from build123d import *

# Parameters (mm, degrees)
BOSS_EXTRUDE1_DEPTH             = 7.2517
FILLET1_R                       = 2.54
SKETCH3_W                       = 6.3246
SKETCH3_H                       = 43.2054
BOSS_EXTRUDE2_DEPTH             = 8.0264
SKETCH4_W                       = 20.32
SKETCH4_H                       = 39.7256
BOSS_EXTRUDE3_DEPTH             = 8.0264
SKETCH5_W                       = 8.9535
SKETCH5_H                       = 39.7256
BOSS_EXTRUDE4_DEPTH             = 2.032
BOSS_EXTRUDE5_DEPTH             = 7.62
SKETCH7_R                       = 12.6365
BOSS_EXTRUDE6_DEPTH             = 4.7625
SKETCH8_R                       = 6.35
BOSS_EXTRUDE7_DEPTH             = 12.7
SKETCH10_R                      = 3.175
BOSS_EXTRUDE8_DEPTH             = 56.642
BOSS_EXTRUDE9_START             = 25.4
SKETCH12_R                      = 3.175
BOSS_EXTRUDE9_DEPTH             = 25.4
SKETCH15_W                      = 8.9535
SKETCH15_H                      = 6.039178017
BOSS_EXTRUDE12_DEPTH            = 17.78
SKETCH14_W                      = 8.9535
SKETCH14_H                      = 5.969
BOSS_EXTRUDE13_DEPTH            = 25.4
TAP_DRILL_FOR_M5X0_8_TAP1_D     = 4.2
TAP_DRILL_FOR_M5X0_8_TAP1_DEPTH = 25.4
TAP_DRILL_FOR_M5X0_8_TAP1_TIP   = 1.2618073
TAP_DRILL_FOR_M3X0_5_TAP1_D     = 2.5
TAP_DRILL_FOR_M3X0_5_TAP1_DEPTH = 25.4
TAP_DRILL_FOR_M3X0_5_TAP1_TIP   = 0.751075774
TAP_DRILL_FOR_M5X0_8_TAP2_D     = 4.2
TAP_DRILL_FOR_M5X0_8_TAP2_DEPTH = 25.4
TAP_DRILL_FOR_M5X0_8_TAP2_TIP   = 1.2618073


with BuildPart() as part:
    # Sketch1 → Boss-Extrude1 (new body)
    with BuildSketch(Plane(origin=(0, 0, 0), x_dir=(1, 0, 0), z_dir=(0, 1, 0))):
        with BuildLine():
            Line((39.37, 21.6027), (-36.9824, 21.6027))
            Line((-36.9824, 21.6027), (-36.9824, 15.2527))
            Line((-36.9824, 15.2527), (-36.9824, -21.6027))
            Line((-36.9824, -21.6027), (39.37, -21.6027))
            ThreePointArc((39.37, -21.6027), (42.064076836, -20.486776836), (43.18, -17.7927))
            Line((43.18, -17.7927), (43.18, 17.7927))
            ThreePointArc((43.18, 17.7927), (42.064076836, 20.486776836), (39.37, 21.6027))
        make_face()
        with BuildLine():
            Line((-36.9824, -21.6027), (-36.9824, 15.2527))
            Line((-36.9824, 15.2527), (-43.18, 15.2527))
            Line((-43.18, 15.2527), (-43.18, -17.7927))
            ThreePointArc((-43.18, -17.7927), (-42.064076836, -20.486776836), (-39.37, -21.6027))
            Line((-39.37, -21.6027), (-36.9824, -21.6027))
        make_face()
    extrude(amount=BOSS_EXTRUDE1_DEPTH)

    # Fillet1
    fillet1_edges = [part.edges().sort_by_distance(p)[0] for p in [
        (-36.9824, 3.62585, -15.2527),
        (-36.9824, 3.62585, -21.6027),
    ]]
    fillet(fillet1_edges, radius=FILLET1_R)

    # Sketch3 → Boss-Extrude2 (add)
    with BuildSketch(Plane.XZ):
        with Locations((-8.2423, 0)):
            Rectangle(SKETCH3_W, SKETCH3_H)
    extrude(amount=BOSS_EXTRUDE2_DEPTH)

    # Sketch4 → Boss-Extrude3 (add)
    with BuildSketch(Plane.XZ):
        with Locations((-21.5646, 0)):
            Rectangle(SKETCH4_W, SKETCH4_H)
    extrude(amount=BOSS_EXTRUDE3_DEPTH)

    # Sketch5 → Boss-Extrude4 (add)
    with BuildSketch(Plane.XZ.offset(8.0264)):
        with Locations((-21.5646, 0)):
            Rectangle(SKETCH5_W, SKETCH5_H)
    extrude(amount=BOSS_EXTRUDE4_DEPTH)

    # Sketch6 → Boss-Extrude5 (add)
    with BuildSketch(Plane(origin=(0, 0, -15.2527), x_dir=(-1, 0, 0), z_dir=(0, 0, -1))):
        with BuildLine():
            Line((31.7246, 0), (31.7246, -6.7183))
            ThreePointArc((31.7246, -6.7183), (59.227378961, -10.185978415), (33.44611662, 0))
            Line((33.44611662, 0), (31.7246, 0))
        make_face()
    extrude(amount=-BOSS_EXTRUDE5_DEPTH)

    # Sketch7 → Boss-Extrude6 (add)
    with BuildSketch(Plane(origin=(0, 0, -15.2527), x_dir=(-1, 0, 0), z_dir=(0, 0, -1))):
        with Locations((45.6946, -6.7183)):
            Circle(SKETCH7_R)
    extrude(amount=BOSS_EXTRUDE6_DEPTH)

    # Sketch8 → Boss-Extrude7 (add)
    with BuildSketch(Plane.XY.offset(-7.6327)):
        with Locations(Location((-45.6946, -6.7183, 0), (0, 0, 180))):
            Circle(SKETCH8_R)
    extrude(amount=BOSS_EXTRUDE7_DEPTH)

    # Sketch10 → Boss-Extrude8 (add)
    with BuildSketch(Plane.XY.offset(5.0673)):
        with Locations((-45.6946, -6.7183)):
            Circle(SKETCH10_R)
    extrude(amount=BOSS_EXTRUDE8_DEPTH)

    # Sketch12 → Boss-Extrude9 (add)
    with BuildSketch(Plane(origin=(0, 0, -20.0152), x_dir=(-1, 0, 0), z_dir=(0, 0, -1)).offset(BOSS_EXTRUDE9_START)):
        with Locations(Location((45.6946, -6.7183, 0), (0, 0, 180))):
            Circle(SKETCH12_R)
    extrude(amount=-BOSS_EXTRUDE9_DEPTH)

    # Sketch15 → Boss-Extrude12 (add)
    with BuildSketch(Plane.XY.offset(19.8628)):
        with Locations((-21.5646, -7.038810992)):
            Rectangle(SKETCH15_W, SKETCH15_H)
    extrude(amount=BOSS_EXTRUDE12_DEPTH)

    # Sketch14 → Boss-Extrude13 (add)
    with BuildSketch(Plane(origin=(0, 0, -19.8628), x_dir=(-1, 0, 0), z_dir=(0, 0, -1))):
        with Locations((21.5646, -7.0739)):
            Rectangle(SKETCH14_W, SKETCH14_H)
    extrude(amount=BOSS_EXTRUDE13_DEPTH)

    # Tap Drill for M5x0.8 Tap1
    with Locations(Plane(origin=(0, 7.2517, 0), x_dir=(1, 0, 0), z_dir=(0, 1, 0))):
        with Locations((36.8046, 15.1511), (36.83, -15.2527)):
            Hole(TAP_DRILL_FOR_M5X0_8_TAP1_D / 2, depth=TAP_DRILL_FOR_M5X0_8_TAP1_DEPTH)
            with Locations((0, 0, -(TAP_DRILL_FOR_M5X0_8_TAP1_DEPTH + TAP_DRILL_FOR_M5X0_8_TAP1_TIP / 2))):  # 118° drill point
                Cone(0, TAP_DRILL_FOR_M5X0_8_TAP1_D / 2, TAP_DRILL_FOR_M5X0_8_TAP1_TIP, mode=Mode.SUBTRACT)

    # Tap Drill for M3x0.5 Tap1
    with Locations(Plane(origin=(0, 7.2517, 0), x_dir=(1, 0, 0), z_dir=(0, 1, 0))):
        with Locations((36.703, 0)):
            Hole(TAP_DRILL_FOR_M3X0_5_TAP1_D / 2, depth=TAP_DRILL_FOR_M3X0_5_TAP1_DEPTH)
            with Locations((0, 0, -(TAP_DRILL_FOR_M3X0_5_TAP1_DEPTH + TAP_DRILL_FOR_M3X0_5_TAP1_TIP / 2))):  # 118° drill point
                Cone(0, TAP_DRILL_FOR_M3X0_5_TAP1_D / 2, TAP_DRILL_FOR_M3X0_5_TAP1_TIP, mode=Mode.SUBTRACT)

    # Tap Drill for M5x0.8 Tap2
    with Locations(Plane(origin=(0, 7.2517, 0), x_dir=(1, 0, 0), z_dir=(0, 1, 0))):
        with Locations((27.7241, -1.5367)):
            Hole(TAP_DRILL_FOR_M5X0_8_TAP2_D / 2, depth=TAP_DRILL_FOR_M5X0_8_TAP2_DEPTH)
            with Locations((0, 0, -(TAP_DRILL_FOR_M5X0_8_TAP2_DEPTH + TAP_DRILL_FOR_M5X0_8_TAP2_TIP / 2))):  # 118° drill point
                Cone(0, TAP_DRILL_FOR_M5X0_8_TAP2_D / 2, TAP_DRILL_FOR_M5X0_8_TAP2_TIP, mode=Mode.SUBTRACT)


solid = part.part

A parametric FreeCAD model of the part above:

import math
import FreeCAD as App
import Part
import Sketcher

V = App.Vector
Q = App.Units.Quantity


def edges_at(feature, points):
    """Names of the edges that pass closest to the given points."""
    edges = feature.Shape.Edges
    near = lambda p: min(range(len(edges)), key=lambda i: edges[i].distToShape(Part.Vertex(*p))[0])
    return sorted({f"Edge{near(p) + 1}" for p in points})

doc = App.newDocument("Part")
body = doc.addObject("PartDesign::Body", "Body")

# Sketch on XZ plane
sketch1 = doc.addObject("Sketcher::SketchObject", "Sketch")
body.addObject(sketch1)
sketch1.AttachmentSupport = (doc.XZ_Plane, [""])
sketch1.MapMode = "FlatFace"
sketch1.addGeometry([
    Part.LineSegment(V(39.37, -21.6027, 0), V(-36.9824, -21.6027, 0)),  # 0
    Part.LineSegment(V(-36.9824, -21.6027, 0), V(-36.9824, -15.2527, 0)),  # 1
    Part.LineSegment(V(-36.9824, -15.2527, 0), V(-43.18, -15.2527, 0)),  # 2
    Part.LineSegment(V(-43.18, -15.2527, 0), V(-43.18, 17.7927, 0)),  # 3
    Part.ArcOfCircle(Part.Circle(V(-39.37, 17.7927, 0), V(0, 0, 1), 3.81), math.radians(90), math.radians(180)),  # 4
    Part.LineSegment(V(-39.37, 21.6027, 0), V(39.37, 21.6027, 0)),  # 5
    Part.ArcOfCircle(Part.Circle(V(39.37, 17.7927, 0), V(0, 0, 1), 3.81), math.radians(0), math.radians(90)),  # 6
    Part.LineSegment(V(43.18, 17.7927, 0), V(43.18, -17.7927, 0)),  # 7
    Part.ArcOfCircle(Part.Circle(V(39.37, -17.7927, 0), V(0, 0, 1), 3.81), math.radians(-90), math.radians(0)),  # 8
], False)
sketch1.addConstraint([
    Sketcher.Constraint("Coincident", 0, 2, 1, 1),
    Sketcher.Constraint("Coincident", 1, 2, 2, 1),
    Sketcher.Constraint("Coincident", 2, 2, 3, 1),
    Sketcher.Constraint("Tangent", 3, 2, 4, 2),
    Sketcher.Constraint("Tangent", 4, 1, 5, 1),
    Sketcher.Constraint("Tangent", 5, 2, 6, 2),
    Sketcher.Constraint("Tangent", 6, 1, 7, 1),
    Sketcher.Constraint("Tangent", 7, 2, 8, 2),
    Sketcher.Constraint("Tangent", 8, 1, 0, 1),
    Sketcher.Constraint("Horizontal", 0),
    Sketcher.Constraint("Vertical", 1),
    Sketcher.Constraint("Horizontal", 2),
    Sketcher.Constraint("Vertical", 3),
    Sketcher.Constraint("Horizontal", 5),
    Sketcher.Constraint("Vertical", 7),
    Sketcher.Constraint("Equal", 4, 6),
    Sketcher.Constraint("Equal", 6, 8),
    Sketcher.Constraint("Symmetric", 4, 3, 8, 3, -1, 1),
    Sketcher.Constraint("Radius", 4, Q("0.15 in")),
    Sketcher.Constraint("DistanceX", 5, 1, 5, 2, Q("3.1 in")),
    Sketcher.Constraint("DistanceY", 1, 1, 1, 2, Q("0.25 in")),
    Sketcher.Constraint("DistanceX", 0, 2, 0, 1, Q("3.006 in")),
    Sketcher.Constraint("DistanceY", 3, 1, 3, 2, Q("1.301 in")),
])
pad1 = doc.addObject("PartDesign::Pad", "Pad")
body.addObject(pad1)
pad1.Profile = sketch1
pad1.Length = Q("0.2855 in")
pad1.Reversed = True
doc.recompute()

fillet = doc.addObject("PartDesign::Fillet", "Fillet")
body.addObject(fillet)
fillet.Base = (pad1, edges_at(pad1, [(-36.982, 3.626, -15.253), (-36.982, 3.626, -21.603)]))
fillet.Radius = Q("0.1 in")

# Sketch on XZ plane
sketch2 = doc.addObject("Sketcher::SketchObject", "Sketch001")
body.addObject(sketch2)
sketch2.AttachmentSupport = (doc.XZ_Plane, [""])
sketch2.MapMode = "FlatFace"
sketch2.addGeometry([
    Part.LineSegment(V(-11.4046, 21.6027, 0), V(-11.4046, -21.6027, 0)),
    Part.LineSegment(V(-11.4046, -21.6027, 0), V(-5.08, -21.6027, 0)),
    Part.LineSegment(V(-5.08, -21.6027, 0), V(-5.08, 21.6027, 0)),
    Part.LineSegment(V(-5.08, 21.6027, 0), V(-11.4046, 21.6027, 0)),
], False)
sketch2.addConstraint([
    Sketcher.Constraint("Coincident", 0, 2, 1, 1),
    Sketcher.Constraint("Coincident", 1, 2, 2, 1),
    Sketcher.Constraint("Coincident", 2, 2, 3, 1),
    Sketcher.Constraint("Coincident", 3, 2, 0, 1),
    Sketcher.Constraint("Vertical", 0),
    Sketcher.Constraint("Horizontal", 1),
    Sketcher.Constraint("Vertical", 2),
    Sketcher.Constraint("Horizontal", 3),
    Sketcher.Constraint("DistanceX", 1, 2, -1, 1, Q("0.2 in")),
    Sketcher.Constraint("DistanceX", 1, 1, 1, 2, Q("0.249 in")),
    Sketcher.Constraint("DistanceY", 0, 2, 0, 1, Q("1.701 in")),
    Sketcher.Constraint("DistanceY", 0, 2, -1, 1, Q("0.8505 in")),
])
pad2 = doc.addObject("PartDesign::Pad", "Pad001")
body.addObject(pad2)
pad2.Profile = sketch2
pad2.Length = Q("0.316 in")

# Sketch on XZ plane
sketch3 = doc.addObject("Sketcher::SketchObject", "Sketch002")
body.addObject(sketch3)
sketch3.AttachmentSupport = (doc.XZ_Plane, [""])
sketch3.MapMode = "FlatFace"
sketch3.addGeometry([
    Part.LineSegment(V(-31.7246, 19.8628, 0), V(-31.7246, -19.8628, 0)),
    Part.LineSegment(V(-31.7246, -19.8628, 0), V(-11.4046, -19.8628, 0)),
    Part.LineSegment(V(-11.4046, -19.8628, 0), V(-11.4046, 19.8628, 0)),
    Part.LineSegment(V(-11.4046, 19.8628, 0), V(-31.7246, 19.8628, 0)),
], False)
sketch3.addConstraint([
    Sketcher.Constraint("Coincident", 0, 2, 1, 1),
    Sketcher.Constraint("Coincident", 1, 2, 2, 1),
    Sketcher.Constraint("Coincident", 2, 2, 3, 1),
    Sketcher.Constraint("Coincident", 3, 2, 0, 1),
    Sketcher.Constraint("Vertical", 0),
    Sketcher.Constraint("Horizontal", 1),
    Sketcher.Constraint("Vertical", 2),
    Sketcher.Constraint("Horizontal", 3),
    Sketcher.Constraint("DistanceX", 1, 1, 1, 2, Q("0.8 in")),
    Sketcher.Constraint("DistanceY", 0, 2, 0, 1, Q("1.564 in")),
    Sketcher.Constraint("DistanceX", 0, 2, -1, 1, Q("1.249 in")),
    Sketcher.Constraint("DistanceY", 0, 2, -1, 1, Q("0.782 in")),
])
pad3 = doc.addObject("PartDesign::Pad", "Pad002")
body.addObject(pad3)
pad3.Profile = sketch3
pad3.Length = Q("0.316 in")

# Sketch on XZ plane
sketch4 = doc.addObject("Sketcher::SketchObject", "Sketch003")
body.addObject(sketch4)
sketch4.AttachmentSupport = (doc.XZ_Plane, [""])
sketch4.MapMode = "FlatFace"
sketch4.AttachmentOffset = App.Placement(V(0, 0, 0.316 * 25.4), App.Rotation())
sketch4.addGeometry([
    Part.LineSegment(V(-26.04135, 19.8628, 0), V(-26.04135, -19.8628, 0)),
    Part.LineSegment(V(-26.04135, -19.8628, 0), V(-17.08785, -19.8628, 0)),
    Part.LineSegment(V(-17.08785, -19.8628, 0), V(-17.08785, 19.8628, 0)),
    Part.LineSegment(V(-17.08785, 19.8628, 0), V(-26.04135, 19.8628, 0)),
], False)
sketch4.addConstraint([
    Sketcher.Constraint("Coincident", 0, 2, 1, 1),
    Sketcher.Constraint("Coincident", 1, 2, 2, 1),
    Sketcher.Constraint("Coincident", 2, 2, 3, 1),
    Sketcher.Constraint("Coincident", 3, 2, 0, 1),
    Sketcher.Constraint("Vertical", 0),
    Sketcher.Constraint("Horizontal", 1),
    Sketcher.Constraint("Vertical", 2),
    Sketcher.Constraint("Horizontal", 3),
    Sketcher.Constraint("DistanceY", 0, 2, 0, 1, Q("1.564 in")),
    Sketcher.Constraint("DistanceX", 1, 1, 1, 2, Q("0.3525 in")),
    Sketcher.Constraint("DistanceY", 0, 2, -1, 1, Q("0.782 in")),
    Sketcher.Constraint("DistanceX", 0, 2, -1, 1, Q("26.04135 mm")),
])
pad4 = doc.addObject("PartDesign::Pad", "Pad003")
body.addObject(pad4)
pad4.Profile = sketch4
pad4.Length = Q("0.08 in")

# Sketch on XY plane
sketch5 = doc.addObject("Sketcher::SketchObject", "Sketch004")
body.addObject(sketch5)
sketch5.AttachmentSupport = (doc.XY_Plane, [""])
sketch5.MapMode = "FlatFace"
sketch5.AttachmentOffset = App.Placement(V(0, 0, -0.6005 * 25.4), App.Rotation())
sketch5.addGeometry([
    Part.LineSegment(V(-31.7246, 0, 0), V(-31.7246, -6.7183, 0)),
    Part.ArcOfCircle(Part.Circle(V(-45.6946, -6.7183, 0), V(0, 0, 1), 13.97), math.radians(28.744793), math.radians(360)),
    Part.LineSegment(V(-33.446117, 0, 0), V(-31.7246, 0, 0)),
], False)
sketch5.addConstraint([
    Sketcher.Constraint("Tangent", 0, 2, 1, 2),
    Sketcher.Constraint("Coincident", 1, 1, 2, 1),
    Sketcher.Constraint("Coincident", 2, 2, 0, 1),
    Sketcher.Constraint("Vertical", 0),
    Sketcher.Constraint("Horizontal", 2),
    Sketcher.Constraint("PointOnObject", 1, 1, -1),
    Sketcher.Constraint("Radius", 1, Q("0.55 in")),
    Sketcher.Constraint("DistanceY", 0, 2, 0, 1, Q("0.2645 in")),
    Sketcher.Constraint("DistanceX", 1, 3, -1, 1, Q("1.799 in")),
])
pad5 = doc.addObject("PartDesign::Pad", "Pad004")
body.addObject(pad5)
pad5.Profile = sketch5
pad5.Length = Q("0.3 in")

# Sketch on XY plane
sketch6 = doc.addObject("Sketcher::SketchObject", "Sketch005")
body.addObject(sketch6)
sketch6.AttachmentSupport = (doc.XY_Plane, [""])
sketch6.MapMode = "FlatFace"
sketch6.AttachmentOffset = App.Placement(V(0, 0, -0.6005 * 25.4), App.Rotation())
sketch6.addGeometry(Part.Circle(V(-45.6946, -6.7183, 0), V(0, 0, 1), 12.6365), False)
sketch6.addConstraint([
    Sketcher.Constraint("Diameter", 0, Q("0.995 in")),
    Sketcher.Constraint("DistanceX", 0, 3, -1, 1, Q("1.799 in")),
    Sketcher.Constraint("DistanceY", 0, 3, -1, 1, Q("0.2645 in")),
])
pad6 = doc.addObject("PartDesign::Pad", "Pad005")
body.addObject(pad6)
pad6.Profile = sketch6
pad6.Length = Q("0.1875 in")
pad6.Reversed = True

# Sketch on XY plane
sketch7 = doc.addObject("Sketcher::SketchObject", "Sketch006")
body.addObject(sketch7)
sketch7.AttachmentSupport = (doc.XY_Plane, [""])
sketch7.MapMode = "FlatFace"
sketch7.AttachmentOffset = App.Placement(V(0, 0, -0.3005 * 25.4), App.Rotation())
sketch7.addGeometry(Part.Circle(V(-45.6946, -6.7183, 0), V(0, 0, 1), 6.35), False)
sketch7.addConstraint([
    Sketcher.Constraint("Diameter", 0, Q("0.5 in")),
    Sketcher.Constraint("DistanceX", 0, 3, -1, 1, Q("1.799 in")),
    Sketcher.Constraint("DistanceY", 0, 3, -1, 1, Q("0.2645 in")),
])
pad7 = doc.addObject("PartDesign::Pad", "Pad006")
body.addObject(pad7)
pad7.Profile = sketch7
pad7.Length = Q("0.5 in")

# Sketch on XY plane
sketch8 = doc.addObject("Sketcher::SketchObject", "Sketch007")
body.addObject(sketch8)
sketch8.AttachmentSupport = (doc.XY_Plane, [""])
sketch8.MapMode = "FlatFace"
sketch8.AttachmentOffset = App.Placement(V(0, 0, 0.1995 * 25.4), App.Rotation())
sketch8.addGeometry(Part.Circle(V(-45.6946, -6.7183, 0), V(0, 0, 1), 3.175), False)
sketch8.addConstraint([
    Sketcher.Constraint("Diameter", 0, Q("0.25 in")),
    Sketcher.Constraint("DistanceX", 0, 3, -1, 1, Q("1.799 in")),
    Sketcher.Constraint("DistanceY", 0, 3, -1, 1, Q("0.2645 in")),
])
pad8 = doc.addObject("PartDesign::Pad", "Pad007")
body.addObject(pad8)
pad8.Profile = sketch8
pad8.Length = Q("2.23 in")

# Sketch on XY plane
sketch9 = doc.addObject("Sketcher::SketchObject", "Sketch008")
body.addObject(sketch9)
sketch9.AttachmentSupport = (doc.XY_Plane, [""])
sketch9.MapMode = "FlatFace"
sketch9.AttachmentOffset = App.Placement(V(0, 0, -1.788 * 25.4), App.Rotation())
sketch9.addGeometry(Part.Circle(V(-45.6946, -6.7183, 0), V(0, 0, 1), 3.175), False)
sketch9.addConstraint([
    Sketcher.Constraint("Diameter", 0, Q("0.25 in")),
    Sketcher.Constraint("DistanceX", 0, 3, -1, 1, Q("1.799 in")),
    Sketcher.Constraint("DistanceY", 0, 3, -1, 1, Q("0.2645 in")),
])
pad9 = doc.addObject("PartDesign::Pad", "Pad008")
body.addObject(pad9)
pad9.Profile = sketch9
pad9.Length = Q("1 in")

# Sketch on XY plane
sketch10 = doc.addObject("Sketcher::SketchObject", "Sketch009")
body.addObject(sketch10)
sketch10.AttachmentSupport = (doc.XY_Plane, [""])
sketch10.MapMode = "FlatFace"
sketch10.AttachmentOffset = App.Placement(V(0, 0, 0.782 * 25.4), App.Rotation())
sketch10.addGeometry([
    Part.LineSegment(V(-26.04135, -4.019222, 0), V(-26.04135, -10.0584, 0)),
    Part.LineSegment(V(-26.04135, -10.0584, 0), V(-17.08785, -10.0584, 0)),
    Part.LineSegment(V(-17.08785, -10.0584, 0), V(-17.08785, -4.019222, 0)),
    Part.LineSegment(V(-17.08785, -4.019222, 0), V(-26.04135, -4.019222, 0)),
], False)
sketch10.addConstraint([
    Sketcher.Constraint("Coincident", 0, 2, 1, 1),
    Sketcher.Constraint("Coincident", 1, 2, 2, 1),
    Sketcher.Constraint("Coincident", 2, 2, 3, 1),
    Sketcher.Constraint("Coincident", 3, 2, 0, 1),
    Sketcher.Constraint("Vertical", 0),
    Sketcher.Constraint("Horizontal", 1),
    Sketcher.Constraint("Vertical", 2),
    Sketcher.Constraint("Horizontal", 3),
    Sketcher.Constraint("DistanceX", 1, 1, 1, 2, Q("0.3525 in")),
    Sketcher.Constraint("DistanceY", 0, 2, -1, 1, Q("0.396 in")),
    Sketcher.Constraint("DistanceY", 0, 2, 0, 1, Q("6.039178 mm")),
    Sketcher.Constraint("DistanceX", 0, 2, -1, 1, Q("26.04135 mm")),
])
pad10 = doc.addObject("PartDesign::Pad", "Pad009")
body.addObject(pad10)
pad10.Profile = sketch10
pad10.Length = Q("0.7 in")

# Sketch on XY plane
sketch11 = doc.addObject("Sketcher::SketchObject", "Sketch010")
body.addObject(sketch11)
sketch11.AttachmentSupport = (doc.XY_Plane, [""])
sketch11.MapMode = "FlatFace"
sketch11.AttachmentOffset = App.Placement(V(0, 0, -0.782 * 25.4), App.Rotation())
sketch11.addGeometry([
    Part.LineSegment(V(-17.08785, -4.0894, 0), V(-17.08785, -10.0584, 0)),
    Part.LineSegment(V(-17.08785, -10.0584, 0), V(-26.04135, -10.0584, 0)),
    Part.LineSegment(V(-26.04135, -10.0584, 0), V(-26.04135, -4.0894, 0)),
    Part.LineSegment(V(-26.04135, -4.0894, 0), V(-17.08785, -4.0894, 0)),
], False)
sketch11.addConstraint([
    Sketcher.Constraint("Coincident", 0, 2, 1, 1),
    Sketcher.Constraint("Coincident", 1, 2, 2, 1),
    Sketcher.Constraint("Coincident", 2, 2, 3, 1),
    Sketcher.Constraint("Coincident", 3, 2, 0, 1),
    Sketcher.Constraint("Vertical", 0),
    Sketcher.Constraint("Horizontal", 1),
    Sketcher.Constraint("Vertical", 2),
    Sketcher.Constraint("Horizontal", 3),
    Sketcher.Constraint("DistanceY", 0, 2, 0, 1, Q("0.235 in")),
    Sketcher.Constraint("DistanceX", 1, 2, 1, 1, Q("0.3525 in")),
    Sketcher.Constraint("DistanceY", 0, 2, -1, 1, Q("0.396 in")),
    Sketcher.Constraint("DistanceX", 0, 2, -1, 1, Q("17.08785 mm")),
])
pad11 = doc.addObject("PartDesign::Pad", "Pad010")
body.addObject(pad11)
pad11.Profile = sketch11
pad11.Length = Q("1 in")
pad11.Reversed = True

# Sketch on XZ plane
sketch12 = doc.addObject("Sketcher::SketchObject", "Sketch011")
body.addObject(sketch12)
sketch12.AttachmentSupport = (doc.XZ_Plane, [""])
sketch12.MapMode = "FlatFace"
sketch12.AttachmentOffset = App.Placement(V(0, 0, -0.2855 * 25.4), App.Rotation())
sketch12.addGeometry([
    Part.Circle(V(36.8046, -15.1511, 0), V(0, 0, 1), 2.1),
    Part.Circle(V(36.83, 15.2527, 0), V(0, 0, 1), 2.1),
], False)
sketch12.addConstraint([
    Sketcher.Constraint("Equal", 0, 1),
    Sketcher.Constraint("Diameter", 0, Q("4.2 mm")),
    Sketcher.Constraint("DistanceX", -1, 1, 1, 3, Q("1.45 in")),
    Sketcher.Constraint("DistanceX", -1, 1, 0, 3, Q("1.449 in")),
    Sketcher.Constraint("DistanceY", 0, 3, 1, 3, Q("1.197 in")),
    Sketcher.Constraint("DistanceY", 0, 3, -1, 1, Q("0.5965 in")),
])
doc.recompute()
hole = doc.addObject("PartDesign::Hole", "Hole")
body.addObject(hole)
hole.Profile = sketch12
hole.ThreadType = "None"
hole.Diameter = 4.2
hole.DepthType = "Dimension"
hole.Depth = Q("1 in")
hole.DrillPoint = "Angled"
hole.DrillPointAngle = 118
hole.Reversed = True

# Sketch on XZ plane
sketch13 = doc.addObject("Sketcher::SketchObject", "Sketch012")
body.addObject(sketch13)
sketch13.AttachmentSupport = (doc.XZ_Plane, [""])
sketch13.MapMode = "FlatFace"
sketch13.AttachmentOffset = App.Placement(V(0, 0, -0.2855 * 25.4), App.Rotation())
sketch13.addGeometry(Part.Circle(V(36.703, 0, 0), V(0, 0, 1), 1.25), False)
sketch13.addConstraint([
    Sketcher.Constraint("PointOnObject", 0, 3, -1),
    Sketcher.Constraint("Diameter", 0, Q("2.5 mm")),
    Sketcher.Constraint("DistanceX", -1, 1, 0, 3, Q("1.445 in")),
])
doc.recompute()
hole2 = doc.addObject("PartDesign::Hole", "Hole001")
body.addObject(hole2)
hole2.Profile = sketch13
hole2.ThreadType = "None"
hole2.Diameter = 2.5
hole2.DepthType = "Dimension"
hole2.Depth = Q("1 in")
hole2.DrillPoint = "Angled"
hole2.DrillPointAngle = 118
hole2.Reversed = True

# Sketch on XZ plane
sketch14 = doc.addObject("Sketcher::SketchObject", "Sketch013")
body.addObject(sketch14)
sketch14.AttachmentSupport = (doc.XZ_Plane, [""])
sketch14.MapMode = "FlatFace"
sketch14.AttachmentOffset = App.Placement(V(0, 0, -0.2855 * 25.4), App.Rotation())
sketch14.addGeometry(Part.Circle(V(27.7241, 1.5367, 0), V(0, 0, 1), 2.1), False)
sketch14.addConstraint([
    Sketcher.Constraint("Diameter", 0, Q("4.2 mm")),
    Sketcher.Constraint("DistanceX", -1, 1, 0, 3, Q("1.0915 in")),
    Sketcher.Constraint("DistanceY", -1, 1, 0, 3, Q("0.0605 in")),
])
doc.recompute()
hole3 = doc.addObject("PartDesign::Hole", "Hole002")
body.addObject(hole3)
hole3.Profile = sketch14
hole3.ThreadType = "None"
hole3.Diameter = 4.2
hole3.DepthType = "Dimension"
hole3.Depth = Q("1 in")
hole3.DrillPoint = "Angled"
hole3.DrillPointAngle = 118
hole3.Reversed = True

doc.recompute()
